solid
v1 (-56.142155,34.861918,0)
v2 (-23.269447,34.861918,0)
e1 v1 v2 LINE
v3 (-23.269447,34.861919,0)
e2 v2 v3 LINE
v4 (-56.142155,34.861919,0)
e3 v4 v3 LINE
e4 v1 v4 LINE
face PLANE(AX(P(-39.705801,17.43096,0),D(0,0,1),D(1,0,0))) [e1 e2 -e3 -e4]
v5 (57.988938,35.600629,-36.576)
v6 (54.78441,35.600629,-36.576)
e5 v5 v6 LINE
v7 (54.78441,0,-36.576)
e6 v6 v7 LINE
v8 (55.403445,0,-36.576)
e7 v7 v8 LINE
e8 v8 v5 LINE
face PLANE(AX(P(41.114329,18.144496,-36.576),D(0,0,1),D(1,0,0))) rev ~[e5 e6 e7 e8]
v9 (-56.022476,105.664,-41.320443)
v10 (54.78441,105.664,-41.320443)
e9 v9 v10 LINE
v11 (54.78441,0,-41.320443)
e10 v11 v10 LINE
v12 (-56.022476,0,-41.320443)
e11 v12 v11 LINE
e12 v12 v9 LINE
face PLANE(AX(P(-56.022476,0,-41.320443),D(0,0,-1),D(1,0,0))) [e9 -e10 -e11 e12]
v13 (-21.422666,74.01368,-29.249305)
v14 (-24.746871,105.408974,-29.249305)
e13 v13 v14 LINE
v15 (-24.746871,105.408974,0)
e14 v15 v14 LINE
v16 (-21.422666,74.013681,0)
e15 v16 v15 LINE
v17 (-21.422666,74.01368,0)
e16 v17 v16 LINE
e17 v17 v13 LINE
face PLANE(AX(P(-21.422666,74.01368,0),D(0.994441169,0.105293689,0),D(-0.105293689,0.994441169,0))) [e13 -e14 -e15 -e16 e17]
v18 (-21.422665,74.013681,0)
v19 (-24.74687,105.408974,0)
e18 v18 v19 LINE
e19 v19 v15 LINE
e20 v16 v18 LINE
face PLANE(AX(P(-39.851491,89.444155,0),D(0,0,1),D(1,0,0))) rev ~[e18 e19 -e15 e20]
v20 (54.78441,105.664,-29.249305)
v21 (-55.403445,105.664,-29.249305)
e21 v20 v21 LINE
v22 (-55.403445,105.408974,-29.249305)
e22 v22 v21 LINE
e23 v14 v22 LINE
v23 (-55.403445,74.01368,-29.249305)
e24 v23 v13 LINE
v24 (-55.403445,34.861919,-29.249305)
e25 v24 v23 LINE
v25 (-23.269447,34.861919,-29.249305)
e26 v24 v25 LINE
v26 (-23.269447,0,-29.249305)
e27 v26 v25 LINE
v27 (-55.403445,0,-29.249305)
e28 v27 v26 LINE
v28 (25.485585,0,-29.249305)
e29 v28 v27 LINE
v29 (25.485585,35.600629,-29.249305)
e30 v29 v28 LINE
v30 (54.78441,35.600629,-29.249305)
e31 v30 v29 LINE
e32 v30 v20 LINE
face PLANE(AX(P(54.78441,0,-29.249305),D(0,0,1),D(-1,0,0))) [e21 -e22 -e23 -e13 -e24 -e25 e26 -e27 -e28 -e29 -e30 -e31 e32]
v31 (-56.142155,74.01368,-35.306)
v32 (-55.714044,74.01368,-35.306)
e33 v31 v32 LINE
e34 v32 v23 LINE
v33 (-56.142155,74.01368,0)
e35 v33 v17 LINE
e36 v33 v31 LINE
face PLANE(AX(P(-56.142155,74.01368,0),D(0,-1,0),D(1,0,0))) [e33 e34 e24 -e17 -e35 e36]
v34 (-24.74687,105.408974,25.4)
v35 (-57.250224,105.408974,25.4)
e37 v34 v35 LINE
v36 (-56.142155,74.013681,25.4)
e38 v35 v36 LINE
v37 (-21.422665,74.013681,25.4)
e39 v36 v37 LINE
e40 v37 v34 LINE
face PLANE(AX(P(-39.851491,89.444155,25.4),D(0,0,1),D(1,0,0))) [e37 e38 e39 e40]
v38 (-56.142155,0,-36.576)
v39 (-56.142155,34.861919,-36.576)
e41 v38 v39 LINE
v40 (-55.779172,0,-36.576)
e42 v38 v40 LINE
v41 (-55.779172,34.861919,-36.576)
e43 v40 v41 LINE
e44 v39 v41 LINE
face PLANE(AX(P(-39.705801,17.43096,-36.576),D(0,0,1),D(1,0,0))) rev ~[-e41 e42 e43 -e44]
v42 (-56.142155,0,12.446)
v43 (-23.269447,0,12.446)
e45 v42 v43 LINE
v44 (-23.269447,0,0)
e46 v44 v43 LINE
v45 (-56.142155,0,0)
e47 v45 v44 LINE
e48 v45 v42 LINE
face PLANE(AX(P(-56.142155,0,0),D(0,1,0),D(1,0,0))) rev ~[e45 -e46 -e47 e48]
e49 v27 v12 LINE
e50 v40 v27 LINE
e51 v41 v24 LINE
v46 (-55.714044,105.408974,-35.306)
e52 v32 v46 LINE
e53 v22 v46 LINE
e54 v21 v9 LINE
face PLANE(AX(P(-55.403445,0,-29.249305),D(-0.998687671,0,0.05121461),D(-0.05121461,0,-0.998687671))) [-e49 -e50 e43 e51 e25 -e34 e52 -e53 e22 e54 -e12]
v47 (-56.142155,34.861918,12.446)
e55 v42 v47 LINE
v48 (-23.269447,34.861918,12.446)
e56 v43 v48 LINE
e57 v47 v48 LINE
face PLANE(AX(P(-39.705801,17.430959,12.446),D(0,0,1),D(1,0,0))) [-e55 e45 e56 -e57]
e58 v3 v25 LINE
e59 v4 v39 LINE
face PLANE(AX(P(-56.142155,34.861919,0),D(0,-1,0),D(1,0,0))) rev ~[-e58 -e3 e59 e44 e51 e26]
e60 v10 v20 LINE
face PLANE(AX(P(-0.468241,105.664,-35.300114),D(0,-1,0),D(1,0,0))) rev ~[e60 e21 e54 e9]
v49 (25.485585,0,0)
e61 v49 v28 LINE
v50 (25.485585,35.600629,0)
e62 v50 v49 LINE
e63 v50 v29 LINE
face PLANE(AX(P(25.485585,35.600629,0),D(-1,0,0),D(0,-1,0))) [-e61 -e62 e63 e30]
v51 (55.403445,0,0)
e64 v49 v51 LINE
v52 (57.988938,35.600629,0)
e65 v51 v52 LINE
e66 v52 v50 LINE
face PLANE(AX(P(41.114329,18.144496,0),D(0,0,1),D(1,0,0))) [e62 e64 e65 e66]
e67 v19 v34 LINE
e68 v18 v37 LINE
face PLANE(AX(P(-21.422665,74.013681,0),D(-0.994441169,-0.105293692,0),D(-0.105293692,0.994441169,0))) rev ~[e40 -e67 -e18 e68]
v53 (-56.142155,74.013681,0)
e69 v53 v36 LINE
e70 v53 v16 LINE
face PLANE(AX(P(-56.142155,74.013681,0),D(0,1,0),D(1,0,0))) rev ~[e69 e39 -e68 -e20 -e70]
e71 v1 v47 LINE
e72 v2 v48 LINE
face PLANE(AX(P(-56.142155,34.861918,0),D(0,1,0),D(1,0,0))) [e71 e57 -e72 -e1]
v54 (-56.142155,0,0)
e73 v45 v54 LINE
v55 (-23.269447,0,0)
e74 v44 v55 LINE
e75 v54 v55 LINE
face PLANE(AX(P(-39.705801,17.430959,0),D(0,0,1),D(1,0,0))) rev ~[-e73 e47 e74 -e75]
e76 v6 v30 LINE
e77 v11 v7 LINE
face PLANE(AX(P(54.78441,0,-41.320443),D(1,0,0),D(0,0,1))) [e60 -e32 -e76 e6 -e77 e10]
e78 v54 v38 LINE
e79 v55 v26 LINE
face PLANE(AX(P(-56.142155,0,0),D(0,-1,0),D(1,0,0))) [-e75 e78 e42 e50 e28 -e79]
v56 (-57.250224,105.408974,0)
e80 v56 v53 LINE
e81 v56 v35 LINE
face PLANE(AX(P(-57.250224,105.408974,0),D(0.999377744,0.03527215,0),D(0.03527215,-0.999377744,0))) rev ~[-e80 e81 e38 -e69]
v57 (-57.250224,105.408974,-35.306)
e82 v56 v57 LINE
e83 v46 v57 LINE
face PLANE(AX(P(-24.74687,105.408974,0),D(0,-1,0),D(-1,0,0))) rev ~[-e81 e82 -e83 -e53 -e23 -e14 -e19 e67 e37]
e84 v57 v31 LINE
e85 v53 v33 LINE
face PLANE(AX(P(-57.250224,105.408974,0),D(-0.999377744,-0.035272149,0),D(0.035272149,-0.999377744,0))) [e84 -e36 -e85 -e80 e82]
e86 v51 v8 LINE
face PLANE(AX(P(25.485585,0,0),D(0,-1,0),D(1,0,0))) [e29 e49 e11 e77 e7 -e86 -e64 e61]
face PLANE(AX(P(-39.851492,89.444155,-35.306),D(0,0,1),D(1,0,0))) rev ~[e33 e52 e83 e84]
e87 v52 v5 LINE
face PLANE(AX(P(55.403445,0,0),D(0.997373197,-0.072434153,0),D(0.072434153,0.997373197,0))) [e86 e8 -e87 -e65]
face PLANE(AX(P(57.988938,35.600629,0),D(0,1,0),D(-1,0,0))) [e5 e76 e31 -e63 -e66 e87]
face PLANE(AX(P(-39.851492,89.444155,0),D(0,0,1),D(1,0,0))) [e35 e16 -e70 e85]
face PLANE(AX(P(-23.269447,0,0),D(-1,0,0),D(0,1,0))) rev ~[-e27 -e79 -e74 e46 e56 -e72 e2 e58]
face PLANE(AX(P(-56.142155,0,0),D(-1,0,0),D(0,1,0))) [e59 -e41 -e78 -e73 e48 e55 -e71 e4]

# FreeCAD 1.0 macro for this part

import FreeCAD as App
import Part
import Sketcher
from FreeCAD import Vector
Q = App.Units.Quantity

doc = App.newDocument("Part")
params = doc.addObject("Spreadsheet::Sheet", "Params")
for row, (alias, value) in enumerate([
    ("pad1_length", "4.16 in"),
    ("pad2_length", "1.44 in"),
    ("pad3_length", "0.49 in"),
    ("pad4_length", "1.39 in"),
    ("pad5_length", "1 in"),
], start=1):
    params.set(f"A{row}", alias)
    params.set(f"B{row}", "=" + value)
    params.setAlias(f"B{row}", alias)

body = doc.addObject("PartDesign::Body", "Body")

sketch1 = body.newObject("Sketcher::SketchObject", "Sketch")
sketch1.AttachmentSupport = (doc.getObject("XZ_Plane"), [""])
sketch1.MapMode = "FlatFace"
sketch1.addGeometry(Part.LineSegment(Vector(54.78441, -29.249305, 0), Vector(-55.403445, -29.249305, 0)), False)
sketch1.addGeometry(Part.LineSegment(Vector(-55.403445, -29.249305, 0), Vector(-56.022476, -41.320443, 0)), False)
sketch1.addGeometry(Part.LineSegment(Vector(-56.022476, -41.320443, 0), Vector(54.78441, -41.320443, 0)), False)
sketch1.addGeometry(Part.LineSegment(Vector(54.78441, -41.320443, 0), Vector(54.78441, -29.249305, 0)), False)
sketch1.addConstraint(Sketcher.Constraint("Coincident", 0, 2, 1, 1))
sketch1.addConstraint(Sketcher.Constraint("Coincident", 1, 2, 2, 1))
sketch1.addConstraint(Sketcher.Constraint("Coincident", 2, 2, 3, 1))
sketch1.addConstraint(Sketcher.Constraint("Coincident", 3, 2, 0, 1))
sketch1.addConstraint(Sketcher.Constraint("Horizontal", 0))
sketch1.addConstraint(Sketcher.Constraint("Horizontal", 2))
sketch1.addConstraint(Sketcher.Constraint("Vertical", 3))
sketch1.addConstraint(Sketcher.Constraint("Distance", 1, Q("12.087 mm")))
sketch1.addConstraint(Sketcher.Constraint("DistanceX", 0, 2, 0, 1, Q("110.187855 mm")))
sketch1.addConstraint(Sketcher.Constraint("DistanceX", 2, 1, 2, 2, Q("110.806886 mm")))
sketch1.addConstraint(Sketcher.Constraint("DistanceX", -1, 1, 2, 2, Q("54.78441 mm")))
sketch1.addConstraint(Sketcher.Constraint("DistanceY", 0, 2, -1, 1, Q("29.249305 mm")))
pad1 = body.newObject("PartDesign::Pad", "Pad")
pad1.Profile = sketch1
pad1.setExpression("Length", "Params.pad1_length")
pad1.Reversed = True

sketch2 = body.newObject("Sketcher::SketchObject", "Sketch001")
sketch2.AttachmentSupport = (doc.getObject("XY_Plane"), [""])
sketch2.MapMode = "FlatFace"
sketch2.addGeometry(Part.LineSegment(Vector(57.988938, 35.600629, 0), Vector(25.485585, 35.600629, 0)), False)
sketch2.addGeometry(Part.LineSegment(Vector(25.485585, 35.600629, 0), Vector(25.485585, 0, 0)), False)
sketch2.addGeometry(Part.LineSegment(Vector(25.485585, 0, 0), Vector(55.403445, 0, 0)), False)
sketch2.addGeometry(Part.LineSegment(Vector(55.403445, 0, 0), Vector(57.988938, 35.600629, 0)), False)
sketch2.addGeometry(Part.LineSegment(Vector(-56.142155, 34.861919, 0), Vector(-56.142155, 0, 0)), False)
sketch2.addGeometry(Part.LineSegment(Vector(-56.142155, 0, 0), Vector(-23.269447, 0, 0)), False)
sketch2.addGeometry(Part.LineSegment(Vector(-23.269447, 0, 0), Vector(-23.269447, 34.861919, 0)), False)
sketch2.addGeometry(Part.LineSegment(Vector(-23.269447, 34.861919, 0), Vector(-56.142155, 34.861919, 0)), False)
sketch2.addConstraint(Sketcher.Constraint("Coincident", 0, 2, 1, 1))
sketch2.addConstraint(Sketcher.Constraint("Coincident", 1, 2, 2, 1))
sketch2.addConstraint(Sketcher.Constraint("Coincident", 2, 2, 3, 1))
sketch2.addConstraint(Sketcher.Constraint("Coincident", 3, 2, 0, 1))
sketch2.addConstraint(Sketcher.Constraint("Coincident", 4, 2, 5, 1))
sketch2.addConstraint(Sketcher.Constraint("Coincident", 5, 2, 6, 1))
sketch2.addConstraint(Sketcher.Constraint("Coincident", 6, 2, 7, 1))
sketch2.addConstraint(Sketcher.Constraint("Coincident", 7, 2, 4, 1))
sketch2.addConstraint(Sketcher.Constraint("Horizontal", 0))
sketch2.addConstraint(Sketcher.Constraint("Vertical", 1))
sketch2.addConstraint(Sketcher.Constraint("Horizontal", 2))
sketch2.addConstraint(Sketcher.Constraint("Vertical", 4))
sketch2.addConstraint(Sketcher.Constraint("Horizontal", 5))
sketch2.addConstraint(Sketcher.Constraint("Vertical", 6))
sketch2.addConstraint(Sketcher.Constraint("Horizontal", 7))
sketch2.addConstraint(Sketcher.Constraint("PointOnObject", 1, 2, -1))
sketch2.addConstraint(Sketcher.Constraint("PointOnObject", 4, 2, -1))
sketch2.addConstraint(Sketcher.Constraint("DistanceX", 2, 1, 2, 2, Q("29.91786 mm")))
sketch2.addConstraint(Sketcher.Constraint("DistanceX", 5, 1, 5, 2, Q("32.872708 mm")))
sketch2.addConstraint(Sketcher.Constraint("DistanceY", 1, 2, 1, 1, Q("35.600629 mm")))
sketch2.addConstraint(Sketcher.Constraint("DistanceY", 4, 2, 4, 1, Q("34.861919 mm")))
sketch2.addConstraint(Sketcher.Constraint("DistanceX", 4, 2, 2, 2, Q("111.5456 mm")))
sketch2.addConstraint(Sketcher.Constraint("Distance", 3, Q("35.694391 mm")))
sketch2.addConstraint(Sketcher.Constraint("DistanceX", -1, 1, 0, 2, Q("25.485585 mm")))
pad2 = body.newObject("PartDesign::Pad", "Pad001")
pad2.Profile = sketch2
pad2.setExpression("Length", "Params.pad2_length")
pad2.Reversed = True

sketch3 = body.newObject("Sketcher::SketchObject", "Sketch002")
sketch3.AttachmentSupport = (doc.getObject("XY_Plane"), [""])
sketch3.MapMode = "FlatFace"
sketch3.addGeometry(Part.LineSegment(Vector(-56.142155, 34.861918, 0), Vector(-56.142155, 0, 0)), False)
sketch3.addGeometry(Part.LineSegment(Vector(-56.142155, 0, 0), Vector(-23.269447, 0, 0)), False)
sketch3.addGeometry(Part.LineSegment(Vector(-23.269447, 0, 0), Vector(-23.269447, 34.861918, 0)), False)
sketch3.addGeometry(Part.LineSegment(Vector(-23.269447, 34.861918, 0), Vector(-56.142155, 34.861918, 0)), False)
sketch3.addConstraint(Sketcher.Constraint("Coincident", 0, 2, 1, 1))
sketch3.addConstraint(Sketcher.Constraint("Coincident", 1, 2, 2, 1))
sketch3.addConstraint(Sketcher.Constraint("Coincident", 2, 2, 3, 1))
sketch3.addConstraint(Sketcher.Constraint("Coincident", 3, 2, 0, 1))
sketch3.addConstraint(Sketcher.Constraint("Vertical", 0))
sketch3.addConstraint(Sketcher.Constraint("Horizontal", 1))
sketch3.addConstraint(Sketcher.Constraint("Vertical", 2))
sketch3.addConstraint(Sketcher.Constraint("Horizontal", 3))
sketch3.addConstraint(Sketcher.Constraint("PointOnObject", 0, 2, -1))
sketch3.addConstraint(Sketcher.Constraint("DistanceX", 1, 1, 1, 2, Q("32.872708 mm")))
sketch3.addConstraint(Sketcher.Constraint("DistanceY", 0, 2, 0, 1, Q("34.861918 mm")))
sketch3.addConstraint(Sketcher.Constraint("DistanceX", 0, 2, -1, 1, Q("56.142155 mm")))
pad3 = body.newObject("PartDesign::Pad", "Pad002")
pad3.Profile = sketch3
pad3.setExpression("Length", "Params.pad3_length")

sketch4 = body.newObject("Sketcher::SketchObject", "Sketch003")
sketch4.AttachmentSupport = (doc.getObject("XY_Plane"), [""])
sketch4.MapMode = "FlatFace"
sketch4.addGeometry(Part.LineSegment(Vector(-24.746871, 105.408974, 0), Vector(-57.250224, 105.408974, 0)), False)
sketch4.addGeometry(Part.LineSegment(Vector(-57.250224, 105.408974, 0), Vector(-56.142155, 74.01368, 0)), False)
sketch4.addGeometry(Part.LineSegment(Vector(-56.142155, 74.01368, 0), Vector(-21.422666, 74.01368, 0)), False)
sketch4.addGeometry(Part.LineSegment(Vector(-21.422666, 74.01368, 0), Vector(-24.746871, 105.408974, 0)), False)
sketch4.addConstraint(Sketcher.Constraint("Coincident", 0, 2, 1, 1))
sketch4.addConstraint(Sketcher.Constraint("Coincident", 1, 2, 2, 1))
sketch4.addConstraint(Sketcher.Constraint("Coincident", 2, 2, 3, 1))
sketch4.addConstraint(Sketcher.Constraint("Coincident", 3, 2, 0, 1))
sketch4.addConstraint(Sketcher.Constraint("Horizontal", 0))
sketch4.addConstraint(Sketcher.Constraint("Horizontal", 2))
sketch4.addConstraint(Sketcher.Constraint("DistanceX", 2, 1, 2, 2, Q("34.719489 mm")))
sketch4.addConstraint(Sketcher.Constraint("Distance", 3, Q("31.570791 mm")))
sketch4.addConstraint(Sketcher.Constraint("DistanceX", 0, 2, 0, 1, Q("32.503353 mm")))
sketch4.addConstraint(Sketcher.Constraint("DistanceY", -1, 1, 1, 2, Q("74.01368 mm")))
sketch4.addConstraint(Sketcher.Constraint("DistanceX", 3, 2, -1, 1, Q("24.746871 mm")))
sketch4.addConstraint(Sketcher.Constraint("DistanceX", 0, 2, 1, 2, Q("1.108069 mm")))
pad4 = body.newObject("PartDesign::Pad", "Pad003")
pad4.Profile = sketch4
pad4.setExpression("Length", "Params.pad4_length")
pad4.Reversed = True

sketch5 = body.newObject("Sketcher::SketchObject", "Sketch004")
sketch5.AttachmentSupport = (doc.getObject("XY_Plane"), [""])
sketch5.MapMode = "FlatFace"
sketch5.addGeometry(Part.LineSegment(Vector(-24.74687, 105.408974, 0), Vector(-57.250224, 105.408974, 0)), False)
sketch5.addGeometry(Part.LineSegment(Vector(-57.250224, 105.408974, 0), Vector(-56.142155, 74.013681, 0)), False)
sketch5.addGeometry(Part.LineSegment(Vector(-56.142155, 74.013681, 0), Vector(-21.422665, 74.013681, 0)), False)
sketch5.addGeometry(Part.LineSegment(Vector(-21.422665, 74.013681, 0), Vector(-24.74687, 105.408974, 0)), False)
sketch5.addConstraint(Sketcher.Constraint("Coincident", 0, 2, 1, 1))
sketch5.addConstraint(Sketcher.Constraint("Coincident", 1, 2, 2, 1))
sketch5.addConstraint(Sketcher.Constraint("Coincident", 2, 2, 3, 1))
sketch5.addConstraint(Sketcher.Constraint("Coincident", 3, 2, 0, 1))
sketch5.addConstraint(Sketcher.Constraint("Horizontal", 0))
sketch5.addConstraint(Sketcher.Constraint("Horizontal", 2))
sketch5.addConstraint(Sketcher.Constraint("DistanceX", 2, 1, 2, 2, Q("34.71949 mm")))
sketch5.addConstraint(Sketcher.Constraint("Distance", 1, Q("31.414841 mm")))
sketch5.addConstraint(Sketcher.Constraint("Distance", 3, Q("31.57079 mm")))
sketch5.addConstraint(Sketcher.Constraint("DistanceX", 0, 2, 0, 1, Q("32.503354 mm")))
sketch5.addConstraint(Sketcher.Constraint("DistanceY", -1, 1, 1, 2, Q("74.013681 mm")))
sketch5.addConstraint(Sketcher.Constraint("DistanceX", 3, 2, -1, 1, Q("24.74687 mm")))
pad5 = body.newObject("PartDesign::Pad", "Pad004")
pad5.Profile = sketch5
pad5.setExpression("Length", "Params.pad5_length")

doc.recompute()
